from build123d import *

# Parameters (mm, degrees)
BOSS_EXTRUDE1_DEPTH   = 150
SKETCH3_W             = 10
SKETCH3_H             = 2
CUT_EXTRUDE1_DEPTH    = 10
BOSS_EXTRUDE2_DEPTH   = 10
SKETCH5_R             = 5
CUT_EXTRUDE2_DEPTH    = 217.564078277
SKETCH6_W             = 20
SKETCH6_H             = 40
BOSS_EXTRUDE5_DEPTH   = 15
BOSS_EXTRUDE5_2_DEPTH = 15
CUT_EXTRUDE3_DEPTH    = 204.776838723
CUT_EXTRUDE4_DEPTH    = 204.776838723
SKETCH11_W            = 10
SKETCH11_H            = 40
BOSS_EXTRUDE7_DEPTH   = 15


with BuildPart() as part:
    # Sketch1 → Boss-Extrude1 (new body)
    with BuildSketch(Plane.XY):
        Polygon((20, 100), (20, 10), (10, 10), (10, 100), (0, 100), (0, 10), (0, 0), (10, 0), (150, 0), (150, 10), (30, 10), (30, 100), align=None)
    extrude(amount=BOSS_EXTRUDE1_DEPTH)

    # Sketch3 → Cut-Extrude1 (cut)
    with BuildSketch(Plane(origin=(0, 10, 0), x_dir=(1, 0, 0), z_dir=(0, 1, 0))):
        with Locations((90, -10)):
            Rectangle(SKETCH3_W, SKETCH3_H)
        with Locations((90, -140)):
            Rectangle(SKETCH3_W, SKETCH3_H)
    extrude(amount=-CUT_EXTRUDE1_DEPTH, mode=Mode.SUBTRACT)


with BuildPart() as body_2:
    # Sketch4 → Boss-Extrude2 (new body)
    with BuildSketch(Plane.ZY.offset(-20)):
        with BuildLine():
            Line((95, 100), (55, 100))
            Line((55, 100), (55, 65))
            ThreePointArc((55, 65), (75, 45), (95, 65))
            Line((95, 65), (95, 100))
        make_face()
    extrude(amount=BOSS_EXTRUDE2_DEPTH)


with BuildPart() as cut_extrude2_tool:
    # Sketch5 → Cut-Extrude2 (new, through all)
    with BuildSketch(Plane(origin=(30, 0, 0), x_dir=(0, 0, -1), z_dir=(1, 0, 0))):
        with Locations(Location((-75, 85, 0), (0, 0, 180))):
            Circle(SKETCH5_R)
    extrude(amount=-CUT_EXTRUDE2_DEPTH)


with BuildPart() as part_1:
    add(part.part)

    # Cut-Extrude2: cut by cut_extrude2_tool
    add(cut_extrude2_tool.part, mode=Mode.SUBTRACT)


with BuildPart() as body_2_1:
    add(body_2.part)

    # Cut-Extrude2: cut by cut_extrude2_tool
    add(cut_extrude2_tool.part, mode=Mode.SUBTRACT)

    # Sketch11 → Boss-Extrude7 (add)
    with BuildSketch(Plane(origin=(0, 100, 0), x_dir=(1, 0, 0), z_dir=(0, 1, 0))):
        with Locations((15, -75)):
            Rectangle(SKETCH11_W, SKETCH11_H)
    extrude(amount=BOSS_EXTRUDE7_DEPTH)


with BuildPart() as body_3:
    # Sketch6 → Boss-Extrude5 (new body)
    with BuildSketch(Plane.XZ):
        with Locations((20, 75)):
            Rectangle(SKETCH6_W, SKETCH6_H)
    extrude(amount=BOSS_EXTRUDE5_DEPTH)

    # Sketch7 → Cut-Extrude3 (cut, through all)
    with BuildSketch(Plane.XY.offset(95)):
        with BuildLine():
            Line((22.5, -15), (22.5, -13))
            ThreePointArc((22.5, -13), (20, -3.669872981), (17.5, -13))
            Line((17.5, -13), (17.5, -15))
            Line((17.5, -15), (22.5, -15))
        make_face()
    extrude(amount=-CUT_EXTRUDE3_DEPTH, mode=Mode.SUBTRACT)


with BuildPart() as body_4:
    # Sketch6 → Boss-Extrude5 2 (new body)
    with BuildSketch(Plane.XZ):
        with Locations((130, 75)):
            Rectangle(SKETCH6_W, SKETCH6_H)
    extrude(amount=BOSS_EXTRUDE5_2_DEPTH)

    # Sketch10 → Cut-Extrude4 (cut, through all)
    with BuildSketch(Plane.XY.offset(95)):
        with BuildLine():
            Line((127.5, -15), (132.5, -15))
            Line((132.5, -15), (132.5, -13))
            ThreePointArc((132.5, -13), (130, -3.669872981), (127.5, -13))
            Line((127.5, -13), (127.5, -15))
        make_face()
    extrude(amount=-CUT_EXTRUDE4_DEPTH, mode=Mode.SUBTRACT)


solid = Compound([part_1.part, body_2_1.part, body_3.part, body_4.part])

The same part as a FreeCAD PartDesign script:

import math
import FreeCAD as App
import Part
import Sketcher
Q = App.Units.Quantity


def add_polygon(sketch, points):
    """Adds a closed chain of lines whose ends are joined by coincident constraints."""
    first, n = sketch.GeometryCount, len(points)
    for a, b in zip(points, points[1:] + points[:1]):
        sketch.addGeometry(Part.LineSegment(App.Vector(*a, 0), App.Vector(*b, 0)), False)
    for i in range(n):
        sketch.addConstraint(Sketcher.Constraint("Coincident", first + i, 2, first + (i + 1) % n, 1))

doc = App.newDocument("Part")
body = doc.addObject("PartDesign::Body", "Body")

# Sketch on XY plane
sketch1 = doc.addObject("Sketcher::SketchObject", "Sketch")
body.addObject(sketch1)
sketch1.AttachmentSupport = (doc.XY_Plane, [""])
sketch1.MapMode = "FlatFace"
add_polygon(sketch1, [(20, 100), (20, 10), (10, 10), (10, 100), (0, 100), (0, 0), (150, 0), (150, 10), (30, 10), (30, 100)])  # lines 0-9
sketch1.addConstraint([
    Sketcher.Constraint("Vertical", 0),
    Sketcher.Constraint("Horizontal", 1),
    Sketcher.Constraint("Vertical", 2),
    Sketcher.Constraint("Horizontal", 3),
    Sketcher.Constraint("Vertical", 4),
    Sketcher.Constraint("Horizontal", 5),
    Sketcher.Constraint("Vertical", 6),
    Sketcher.Constraint("Horizontal", 7),
    Sketcher.Constraint("Vertical", 8),
    Sketcher.Constraint("Horizontal", 9),
    Sketcher.Constraint("Coincident", 4, 2, -1, 1),
    Sketcher.Constraint("Horizontal", 1, 2, 6, 2),
    Sketcher.Constraint("Horizontal", 3, 2, 8, 2),
    Sketcher.Constraint("Equal", 1, 3),
    Sketcher.Constraint("Equal", 3, 9),
    Sketcher.Constraint("Equal", 9, 6),
    Sketcher.Constraint("DistanceX", 1, 2, 1, 1, Q("10 mm")),
    Sketcher.Constraint("DistanceX", 5, 1, 5, 2, Q("150 mm")),
    Sketcher.Constraint("DistanceY", 0, 2, 0, 1, Q("90 mm")),
])
pad1 = doc.addObject("PartDesign::Pad", "Pad")
body.addObject(pad1)
pad1.Profile = sketch1
pad1.Length = 150

# Sketch on XZ plane
sketch2 = doc.addObject("Sketcher::SketchObject", "Sketch001")
body.addObject(sketch2)
sketch2.AttachmentSupport = (doc.XZ_Plane, [""])
sketch2.MapMode = "FlatFace"
sketch2.AttachmentOffset = App.Placement(App.Vector(0, 0, -10), App.Rotation())
add_polygon(sketch2, [(85, 9), (85, 11), (95, 11), (95, 9)])  # lines 0-3
add_polygon(sketch2, [(85, 139), (85, 141), (95, 141), (95, 139)])  # lines 4-7
sketch2.addConstraint([
    Sketcher.Constraint("Vertical", 0),
    Sketcher.Constraint("Horizontal", 1),
    Sketcher.Constraint("Vertical", 2),
    Sketcher.Constraint("Horizontal", 3),
    Sketcher.Constraint("Vertical", 4),
    Sketcher.Constraint("Horizontal", 5),
    Sketcher.Constraint("Vertical", 6),
    Sketcher.Constraint("Horizontal", 7),
    Sketcher.Constraint("Vertical", 3, 2, 4, 2),
    Sketcher.Constraint("Vertical", 2, 2, 5, 2),
    Sketcher.Constraint("Equal", 2, 4),
    Sketcher.Constraint("DistanceX", 1, 1, 1, 2, Q("10 mm")),
    Sketcher.Constraint("DistanceY", 0, 1, 0, 2, Q("2 mm")),
    Sketcher.Constraint("DistanceX", -1, 1, 0, 2, Q("85 mm")),
    Sketcher.Constraint("DistanceY", -1, 1, 0, 2, Q("11 mm")),
    Sketcher.Constraint("DistanceY", -1, 1, 4, 2, Q("141 mm")),
])
pocket1 = doc.addObject("PartDesign::Pocket", "Pocket")
body.addObject(pocket1)
pocket1.Profile = sketch2
pocket1.Length = 10
pocket1.Reversed = True
body2 = doc.addObject("PartDesign::Body", "Body001")

# Sketch on YZ plane
sketch3 = doc.addObject("Sketcher::SketchObject", "Sketch002")
body2.addObject(sketch3)
sketch3.AttachmentSupport = (doc.getObject("YZ_Plane001"), [""])
sketch3.MapMode = "FlatFace"
sketch3.AttachmentOffset = App.Placement(App.Vector(0, 0, 20), App.Rotation())
sketch3.addGeometry([
    Part.LineSegment(App.Vector(100, 95, 0), App.Vector(100, 55, 0)),
    Part.LineSegment(App.Vector(100, 55, 0), App.Vector(65, 55, 0)),
    Part.ArcOfCircle(Part.Circle(App.Vector(65, 75, 0), App.Vector(0, 0, 1), 20), math.radians(90), math.radians(270)),
    Part.LineSegment(App.Vector(65, 95, 0), App.Vector(100, 95, 0)),
], False)
sketch3.addConstraint([
    Sketcher.Constraint("Coincident", 0, 2, 1, 1),
    Sketcher.Constraint("Tangent", 1, 2, 2, 2),
    Sketcher.Constraint("Tangent", 2, 1, 3, 1),
    Sketcher.Constraint("Coincident", 3, 2, 0, 1),
    Sketcher.Constraint("Vertical", 0),
    Sketcher.Constraint("Horizontal", 1),
    Sketcher.Constraint("Horizontal", 3),
    Sketcher.Constraint("Radius", 2, Q("20 mm")),
    Sketcher.Constraint("DistanceX", 1, 2, 1, 1, Q("35 mm")),
    Sketcher.Constraint("DistanceX", -1, 1, 2, 3, Q("65 mm")),
    Sketcher.Constraint("DistanceY", -1, 1, 2, 3, Q("75 mm")),
])
pad2 = doc.addObject("PartDesign::Pad", "Pad001")
body2.addObject(pad2)
pad2.Profile = sketch3
pad2.Length = 10
pad2.Reversed = True
body3 = doc.addObject("PartDesign::Body", "Body002")

# Sketch on YZ plane
sketch4 = doc.addObject("Sketcher::SketchObject", "Sketch003")
body3.addObject(sketch4)
sketch4.AttachmentSupport = (doc.getObject("YZ_Plane002"), [""])
sketch4.MapMode = "FlatFace"
sketch4.AttachmentOffset = App.Placement(App.Vector(0, 0, 30), App.Rotation())
sketch4.addGeometry(Part.Circle(App.Vector(85, 75, 0), App.Vector(0, 0, 1), 5), False)
sketch4.addConstraint([
    Sketcher.Constraint("Diameter", 0, Q("10 mm")),
    Sketcher.Constraint("DistanceX", -1, 1, 0, 3, Q("85 mm")),
    Sketcher.Constraint("DistanceY", -1, 1, 0, 3, Q("75 mm")),
])
pad3 = doc.addObject("PartDesign::Pad", "Pad002")
body3.addObject(pad3)
pad3.Profile = sketch4
pad3.Length = 217.564078
pad3.Reversed = True
doc.recompute()

body4 = doc.addObject("PartDesign::Body", "Body003")
body4.BaseFeature = body3
boolean = doc.addObject("PartDesign::Boolean", "Boolean")
body.addObject(boolean)
boolean.Type = "Cut"
boolean.addObjects([body4])
doc.recompute()

boolean2 = doc.addObject("PartDesign::Boolean", "Boolean001")
body2.addObject(boolean2)
boolean2.Type = "Cut"
boolean2.addObjects([body3])

# Sketch on XZ plane
sketch5 = doc.addObject("Sketcher::SketchObject", "Sketch004")
body2.addObject(sketch5)
sketch5.AttachmentSupport = (doc.getObject("XZ_Plane001"), [""])
sketch5.MapMode = "FlatFace"
sketch5.AttachmentOffset = App.Placement(App.Vector(0, 0, -100), App.Rotation())
add_polygon(sketch5, [(10, 55), (10, 95), (20, 95), (20, 55)])  # lines 0-3
sketch5.addConstraint([
    Sketcher.Constraint("Vertical", 0),
    Sketcher.Constraint("Horizontal", 1),
    Sketcher.Constraint("Vertical", 2),
    Sketcher.Constraint("Horizontal", 3),
    Sketcher.Constraint("DistanceX", 1, 1, 1, 2, Q("10 mm")),
    Sketcher.Constraint("DistanceY", 0, 1, 0, 2, Q("40 mm")),
    Sketcher.Constraint("DistanceX", -1, 1, 0, 2, Q("10 mm")),
    Sketcher.Constraint("DistanceY", -1, 1, 0, 2, Q("95 mm")),
])
pad4 = doc.addObject("PartDesign::Pad", "Pad003")
body2.addObject(pad4)
pad4.Profile = sketch5
pad4.Length = 15
pad4.Reversed = True
body5 = doc.addObject("PartDesign::Body", "Body004")

# Sketch on XZ plane
sketch6 = doc.addObject("Sketcher::SketchObject", "Sketch005")
body5.addObject(sketch6)
sketch6.AttachmentSupport = (doc.getObject("XZ_Plane004"), [""])
sketch6.MapMode = "FlatFace"
add_polygon(sketch6, [(10, 95), (10, 55), (30, 55), (30, 95)])  # lines 0-3
sketch6.addConstraint([
    Sketcher.Constraint("Vertical", 0),
    Sketcher.Constraint("Horizontal", 1),
    Sketcher.Constraint("Vertical", 2),
    Sketcher.Constraint("Horizontal", 3),
    Sketcher.Constraint("DistanceX", 1, 1, 1, 2, Q("20 mm")),
    Sketcher.Constraint("DistanceY", 0, 2, 0, 1, Q("40 mm")),
    Sketcher.Constraint("DistanceX", -1, 1, 0, 2, Q("10 mm")),
    Sketcher.Constraint("DistanceY", -1, 1, 0, 2, Q("55 mm")),
])
pad5 = doc.addObject("PartDesign::Pad", "Pad004")
body5.addObject(pad5)
pad5.Profile = sketch6
pad5.Length = 15

# Sketch on XY plane
sketch7 = doc.addObject("Sketcher::SketchObject", "Sketch006")
body5.addObject(sketch7)
sketch7.AttachmentSupport = (doc.getObject("XY_Plane004"), [""])
sketch7.MapMode = "FlatFace"
sketch7.AttachmentOffset = App.Placement(App.Vector(0, 0, 95), App.Rotation())
sketch7.addGeometry([
    Part.LineSegment(App.Vector(22.5, -15, 0), App.Vector(22.5, -13, 0)),
    Part.ArcOfCircle(Part.Circle(App.Vector(20, -8.669873, 0), App.Vector(0, 0, 1), 5), math.radians(-60), math.radians(240)),
    Part.LineSegment(App.Vector(17.5, -13, 0), App.Vector(17.5, -15, 0)),
    Part.LineSegment(App.Vector(17.5, -15, 0), App.Vector(22.5, -15, 0)),
], False)
sketch7.addConstraint([
    Sketcher.Constraint("Coincident", 0, 2, 1, 1),
    Sketcher.Constraint("Coincident", 1, 2, 2, 1),
    Sketcher.Constraint("Coincident", 2, 2, 3, 1),
    Sketcher.Constraint("Coincident", 3, 2, 0, 1),
    Sketcher.Constraint("Vertical", 0),
    Sketcher.Constraint("Vertical", 2),
    Sketcher.Constraint("Horizontal", 3),
    Sketcher.Constraint("Horizontal", 0, 2, 1, 2),
    Sketcher.Constraint("Radius", 1, Q("5 mm")),
    Sketcher.Constraint("DistanceX", 3, 1, 3, 2, Q("5 mm")),
    Sketcher.Constraint("DistanceY", 0, 1, 0, 2, Q("2 mm")),
    Sketcher.Constraint("DistanceX", -1, 1, 1, 3, Q("20 mm")),
    Sketcher.Constraint("DistanceY", 0, 2, -1, 1, Q("13 mm")),
])
pocket2 = doc.addObject("PartDesign::Pocket", "Pocket001")
body5.addObject(pocket2)
pocket2.Profile = sketch7
pocket2.Type = "ThroughAll"
body6 = doc.addObject("PartDesign::Body", "Body005")

# Sketch on XZ plane
sketch8 = doc.addObject("Sketcher::SketchObject", "Sketch007")
body6.addObject(sketch8)
sketch8.AttachmentSupport = (doc.getObject("XZ_Plane005"), [""])
sketch8.MapMode = "FlatFace"
add_polygon(sketch8, [(120, 95), (120, 55), (140, 55), (140, 95)])  # lines 0-3
sketch8.addConstraint([
    Sketcher.Constraint("Vertical", 0),
    Sketcher.Constraint("Horizontal", 1),
    Sketcher.Constraint("Vertical", 2),
    Sketcher.Constraint("Horizontal", 3),
    Sketcher.Constraint("DistanceX", 1, 1, 1, 2, Q("20 mm")),
    Sketcher.Constraint("DistanceY", 0, 2, 0, 1, Q("40 mm")),
    Sketcher.Constraint("DistanceX", -1, 1, 0, 2, Q("120 mm")),
    Sketcher.Constraint("DistanceY", -1, 1, 0, 2, Q("55 mm")),
])
pad6 = doc.addObject("PartDesign::Pad", "Pad005")
body6.addObject(pad6)
pad6.Profile = sketch8
pad6.Length = 15

# Sketch on XY plane
sketch9 = doc.addObject("Sketcher::SketchObject", "Sketch008")
body6.addObject(sketch9)
sketch9.AttachmentSupport = (doc.getObject("XY_Plane005"), [""])
sketch9.MapMode = "FlatFace"
sketch9.AttachmentOffset = App.Placement(App.Vector(0, 0, 95), App.Rotation())
sketch9.addGeometry([
    Part.LineSegment(App.Vector(127.5, -15, 0), App.Vector(132.5, -15, 0)),
    Part.LineSegment(App.Vector(132.5, -15, 0), App.Vector(132.5, -13, 0)),
    Part.ArcOfCircle(Part.Circle(App.Vector(130, -8.669873, 0), App.Vector(0, 0, 1), 5), math.radians(-60), math.radians(240)),
    Part.LineSegment(App.Vector(127.5, -13, 0), App.Vector(127.5, -15, 0)),
], False)
sketch9.addConstraint([
    Sketcher.Constraint("Coincident", 0, 2, 1, 1),
    Sketcher.Constraint("Coincident", 1, 2, 2, 1),
    Sketcher.Constraint("Coincident", 2, 2, 3, 1),
    Sketcher.Constraint("Coincident", 3, 2, 0, 1),
    Sketcher.Constraint("Horizontal", 0),
    Sketcher.Constraint("Vertical", 1),
    Sketcher.Constraint("Vertical", 3),
    Sketcher.Constraint("Horizontal", 1, 2, 2, 2),
    Sketcher.Constraint("Radius", 2, Q("5 mm")),
    Sketcher.Constraint("DistanceX", 0, 1, 0, 2, Q("5 mm")),
    Sketcher.Constraint("DistanceY", 1, 1, 1, 2, Q("2 mm")),
    Sketcher.Constraint("DistanceX", -1, 1, 2, 3, Q("130 mm")),
    Sketcher.Constraint("DistanceY", 0, 2, -1, 1, Q("15 mm")),
])
pocket3 = doc.addObject("PartDesign::Pocket", "Pocket002")
body6.addObject(pocket3)
pocket3.Profile = sketch9
pocket3.Type = "ThroughAll"

doc.recompute()
